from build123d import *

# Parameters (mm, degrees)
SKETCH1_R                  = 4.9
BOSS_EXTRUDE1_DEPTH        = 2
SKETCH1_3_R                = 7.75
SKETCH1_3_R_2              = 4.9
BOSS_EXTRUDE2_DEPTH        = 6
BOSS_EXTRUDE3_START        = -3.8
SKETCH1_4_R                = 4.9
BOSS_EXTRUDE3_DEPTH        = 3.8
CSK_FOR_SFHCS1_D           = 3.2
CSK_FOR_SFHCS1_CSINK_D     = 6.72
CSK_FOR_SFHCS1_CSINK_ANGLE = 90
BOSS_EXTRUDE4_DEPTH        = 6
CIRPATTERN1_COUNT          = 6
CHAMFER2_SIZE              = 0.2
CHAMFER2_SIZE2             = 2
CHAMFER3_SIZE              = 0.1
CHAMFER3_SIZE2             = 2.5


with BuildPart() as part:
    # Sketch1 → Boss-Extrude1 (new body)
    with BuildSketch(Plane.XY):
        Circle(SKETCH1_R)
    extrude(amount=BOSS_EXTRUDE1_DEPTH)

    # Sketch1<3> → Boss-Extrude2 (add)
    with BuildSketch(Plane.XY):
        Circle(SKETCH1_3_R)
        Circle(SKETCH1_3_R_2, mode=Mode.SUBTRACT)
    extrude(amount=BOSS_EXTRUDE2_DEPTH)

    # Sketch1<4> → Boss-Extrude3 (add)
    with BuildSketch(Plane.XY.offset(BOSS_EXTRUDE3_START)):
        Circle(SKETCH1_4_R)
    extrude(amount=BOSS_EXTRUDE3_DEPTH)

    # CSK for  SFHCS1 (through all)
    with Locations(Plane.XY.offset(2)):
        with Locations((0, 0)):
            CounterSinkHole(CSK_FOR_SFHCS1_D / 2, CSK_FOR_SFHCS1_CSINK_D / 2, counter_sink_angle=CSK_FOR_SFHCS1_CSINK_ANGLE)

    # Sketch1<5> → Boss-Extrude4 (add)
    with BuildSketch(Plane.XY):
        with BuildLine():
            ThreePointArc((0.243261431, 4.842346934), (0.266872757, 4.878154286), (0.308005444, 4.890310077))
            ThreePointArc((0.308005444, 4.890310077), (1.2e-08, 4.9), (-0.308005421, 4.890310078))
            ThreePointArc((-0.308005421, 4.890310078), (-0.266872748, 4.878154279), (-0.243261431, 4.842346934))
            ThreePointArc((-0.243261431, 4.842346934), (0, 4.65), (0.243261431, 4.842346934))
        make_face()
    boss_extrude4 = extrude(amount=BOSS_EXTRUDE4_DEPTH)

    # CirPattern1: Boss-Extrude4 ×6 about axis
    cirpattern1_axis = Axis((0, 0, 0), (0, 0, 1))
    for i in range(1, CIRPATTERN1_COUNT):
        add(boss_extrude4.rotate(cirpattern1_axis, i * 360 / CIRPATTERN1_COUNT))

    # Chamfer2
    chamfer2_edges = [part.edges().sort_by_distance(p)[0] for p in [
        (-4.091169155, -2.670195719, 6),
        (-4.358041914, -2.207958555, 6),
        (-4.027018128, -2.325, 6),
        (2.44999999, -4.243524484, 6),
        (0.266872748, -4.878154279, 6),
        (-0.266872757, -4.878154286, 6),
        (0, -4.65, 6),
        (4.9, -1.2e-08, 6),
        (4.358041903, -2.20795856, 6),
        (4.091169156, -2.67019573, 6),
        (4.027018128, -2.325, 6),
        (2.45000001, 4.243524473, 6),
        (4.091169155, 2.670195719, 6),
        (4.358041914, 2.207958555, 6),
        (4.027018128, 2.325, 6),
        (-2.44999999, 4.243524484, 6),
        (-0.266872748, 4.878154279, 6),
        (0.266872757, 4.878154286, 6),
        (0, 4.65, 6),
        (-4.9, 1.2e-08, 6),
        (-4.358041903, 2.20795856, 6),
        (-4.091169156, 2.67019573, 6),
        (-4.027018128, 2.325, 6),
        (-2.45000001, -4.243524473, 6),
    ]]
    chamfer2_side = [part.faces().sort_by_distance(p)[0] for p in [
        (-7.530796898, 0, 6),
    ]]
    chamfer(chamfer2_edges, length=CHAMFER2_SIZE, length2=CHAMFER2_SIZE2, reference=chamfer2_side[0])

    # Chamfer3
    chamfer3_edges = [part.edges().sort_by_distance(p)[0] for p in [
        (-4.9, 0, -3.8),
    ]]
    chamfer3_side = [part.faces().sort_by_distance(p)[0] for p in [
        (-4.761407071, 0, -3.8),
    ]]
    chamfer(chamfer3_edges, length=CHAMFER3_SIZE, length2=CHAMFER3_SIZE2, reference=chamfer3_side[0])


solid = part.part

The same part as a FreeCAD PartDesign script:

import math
import FreeCAD as App
import Part
import Sketcher
Q = App.Units.Quantity


def edges_at(feature, points):
    """Names of the edges that pass closest to the given points."""
    edges = feature.Shape.Edges
    near = lambda p: min(range(len(edges)), key=lambda i: edges[i].distToShape(Part.Vertex(*p))[0])
    return sorted({f"Edge{near(p) + 1}" for p in points})

doc = App.newDocument("Part")
body = doc.addObject("PartDesign::Body", "Body")

sketch1 = doc.addObject("Sketcher::SketchObject", "Sketch")
body.addObject(sketch1)
sketch1.AttachmentSupport = (doc.XY_Plane, [""])
sketch1.MapMode = "FlatFace"
sketch1.addGeometry(Part.Circle(App.Vector(0, 0, 0), App.Vector(0, 0, 1), 4.9), False)
sketch1.addConstraint(Sketcher.Constraint("Coincident", 0, 3, -1, 1))
sketch1.addConstraint(Sketcher.Constraint("Diameter", 0, Q("9.8 mm")))
pad1 = doc.addObject("PartDesign::Pad", "Pad")
body.addObject(pad1)
pad1.Profile = sketch1
pad1.Length = 2

sketch2 = doc.addObject("Sketcher::SketchObject", "Sketch001")
body.addObject(sketch2)
sketch2.AttachmentSupport = (doc.XY_Plane, [""])
sketch2.MapMode = "FlatFace"
sketch2.addGeometry(Part.Circle(App.Vector(0, 0, 0), App.Vector(0, 0, 1), 7.8), False)
sketch2.addGeometry(Part.Circle(App.Vector(0, 0, 0), App.Vector(0, 0, 1), 4.9), False)
sketch2.addConstraint(Sketcher.Constraint("Coincident", 0, 3, -1, 1))
sketch2.addConstraint(Sketcher.Constraint("Coincident", 1, 3, -1, 1))
sketch2.addConstraint(Sketcher.Constraint("Diameter", 0, Q("15.5 mm")))
sketch2.addConstraint(Sketcher.Constraint("Diameter", 1, Q("9.8 mm")))
pad2 = doc.addObject("PartDesign::Pad", "Pad001")
body.addObject(pad2)
pad2.Profile = sketch2
pad2.Length = 6

sketch3 = doc.addObject("Sketcher::SketchObject", "Sketch002")
body.addObject(sketch3)
sketch3.AttachmentSupport = (doc.XY_Plane, [""])
sketch3.MapMode = "FlatFace"
sketch3.AttachmentOffset = App.Placement(App.Vector(0, 0, -3.8), App.Rotation())
sketch3.addGeometry(Part.Circle(App.Vector(0, 0, 0), App.Vector(0, 0, 1), 4.9), False)
sketch3.addConstraint(Sketcher.Constraint("Coincident", 0, 3, -1, 1))
sketch3.addConstraint(Sketcher.Constraint("Diameter", 0, Q("9.8 mm")))
pad3 = doc.addObject("PartDesign::Pad", "Pad002")
body.addObject(pad3)
pad3.Profile = sketch3
pad3.Length = 3.8

sketch4 = doc.addObject("Sketcher::SketchObject", "Sketch003")
body.addObject(sketch4)
sketch4.AttachmentSupport = (doc.XY_Plane, [""])
sketch4.MapMode = "FlatFace"
sketch4.AttachmentOffset = App.Placement(App.Vector(0, 0, 2), App.Rotation())
sketch4.addGeometry(Part.Circle(App.Vector(0, 0, 0), App.Vector(0, 0, 1), 1.6), False)
sketch4.addConstraint(Sketcher.Constraint("Coincident", 0, 3, -1, 1))
sketch4.addConstraint(Sketcher.Constraint("Diameter", 0, Q("3.2 mm")))
doc.recompute()
hole = doc.addObject("PartDesign::Hole", "Hole")
body.addObject(hole)
hole.Profile = sketch4
hole.ThreadType = "None"
hole.Diameter = 3.2
hole.DepthType = "ThroughAll"
hole.HoleCutType = "Countersink"
hole.HoleCutDiameter = 6.72
hole.HoleCutCountersinkAngle = 90

sketch5 = doc.addObject("Sketcher::SketchObject", "Sketch004")
body.addObject(sketch5)
sketch5.AttachmentSupport = (doc.XY_Plane, [""])
sketch5.MapMode = "FlatFace"
sketch5.addGeometry(Part.ArcOfCircle(Part.Circle(App.Vector(0.3, 4.83, 0), App.Vector(0, 0, 1), 0.06), math.radians(86), math.radians(167)), False)
sketch5.addGeometry(Part.ArcOfCircle(Part.Circle(App.Vector(0, 0, 0), App.Vector(0, 0, 1), 4.9), math.radians(86.4), math.radians(93.6)), False)
sketch5.addGeometry(Part.ArcOfCircle(Part.Circle(App.Vector(-0.3, 4.83, 0), App.Vector(0, 0, 1), 0.06), math.radians(13), math.radians(94)), False)
sketch5.addGeometry(Part.ArcOfCircle(Part.Circle(App.Vector(0, 4.9, 0), App.Vector(0, 0, 1), 0.25), math.radians(-167), math.radians(-13)), False)
sketch5.addConstraint(Sketcher.Constraint("Tangent", 0, 1, 1, 1))
sketch5.addConstraint(Sketcher.Constraint("Tangent", 1, 2, 2, 2))
sketch5.addConstraint(Sketcher.Constraint("Tangent", 2, 1, 3, 1))
sketch5.addConstraint(Sketcher.Constraint("Tangent", 3, 2, 0, 2))
sketch5.addConstraint(Sketcher.Constraint("Coincident", 1, 3, -1, 1))
sketch5.addConstraint(Sketcher.Constraint("Equal", 0, 2))
sketch5.addConstraint(Sketcher.Constraint("PointOnObject", 3, 3, -2))
sketch5.addConstraint(Sketcher.Constraint("Radius", 1, Q("4.9 mm")))
sketch5.addConstraint(Sketcher.Constraint("Radius", 3, Q("0.25 mm")))
sketch5.addConstraint(Sketcher.Constraint("DistanceY", -1, 1, 3, 3, Q("4.9 mm")))
sketch5.addConstraint(Sketcher.Constraint("Radius", 0, Q("0.0625 mm")))
pad4 = doc.addObject("PartDesign::Pad", "Pad003")
body.addObject(pad4)
pad4.Profile = sketch5
pad4.Length = 6
doc.recompute()

polarpattern = doc.addObject("PartDesign::PolarPattern", "PolarPattern")
body.addObject(polarpattern)
polarpattern.Originals = [pad4]
polarpattern.Axis = (doc.Z_Axis, [""])
polarpattern.Angle = 360
polarpattern.Occurrences = 6
body.Tip = polarpattern
doc.recompute()

chamfer = doc.addObject("PartDesign::Chamfer", "Chamfer")
body.addObject(chamfer)
chamfer.Base = (polarpattern, edges_at(polarpattern, [
    (-4.091, -2.67, 6),
    (-4.358, -2.208, 6),
    (-4.027, -2.325, 6),
    (2.45, -4.244, 6),
    (0.267, -4.878, 6),
    (-0.267, -4.878, 6),
    (0, -4.65, 6),
    (4.9, 0, 6),
    (4.358, -2.208, 6),
    (4.091, -2.67, 6),
    (4.027, -2.325, 6),
    (2.45, 4.244, 6),
    (4.091, 2.67, 6),
    (4.358, 2.208, 6),
    (4.027, 2.325, 6),
    (-2.45, 4.244, 6),
    (-0.267, 4.878, 6),
    (0.267, 4.878, 6),
    (0, 4.65, 6),
    (-4.9, 0, 6),
    (-4.358, 2.208, 6),
    (-4.091, 2.67, 6),
    (-4.027, 2.325, 6),
    (-2.45, -4.244, 6),
]))
chamfer.ChamferType = "Two distances"
chamfer.Size = 0.2
chamfer.Size2 = 2
chamfer.FlipDirection = True
doc.recompute()

chamfer2 = doc.addObject("PartDesign::Chamfer", "Chamfer001")
body.addObject(chamfer2)
chamfer2.Base = (chamfer, edges_at(chamfer, [(-4.9, 0, -3.8)]))
chamfer2.ChamferType = "Two distances"
chamfer2.Size = 0.1
chamfer2.Size2 = 2.5

doc.recompute()
